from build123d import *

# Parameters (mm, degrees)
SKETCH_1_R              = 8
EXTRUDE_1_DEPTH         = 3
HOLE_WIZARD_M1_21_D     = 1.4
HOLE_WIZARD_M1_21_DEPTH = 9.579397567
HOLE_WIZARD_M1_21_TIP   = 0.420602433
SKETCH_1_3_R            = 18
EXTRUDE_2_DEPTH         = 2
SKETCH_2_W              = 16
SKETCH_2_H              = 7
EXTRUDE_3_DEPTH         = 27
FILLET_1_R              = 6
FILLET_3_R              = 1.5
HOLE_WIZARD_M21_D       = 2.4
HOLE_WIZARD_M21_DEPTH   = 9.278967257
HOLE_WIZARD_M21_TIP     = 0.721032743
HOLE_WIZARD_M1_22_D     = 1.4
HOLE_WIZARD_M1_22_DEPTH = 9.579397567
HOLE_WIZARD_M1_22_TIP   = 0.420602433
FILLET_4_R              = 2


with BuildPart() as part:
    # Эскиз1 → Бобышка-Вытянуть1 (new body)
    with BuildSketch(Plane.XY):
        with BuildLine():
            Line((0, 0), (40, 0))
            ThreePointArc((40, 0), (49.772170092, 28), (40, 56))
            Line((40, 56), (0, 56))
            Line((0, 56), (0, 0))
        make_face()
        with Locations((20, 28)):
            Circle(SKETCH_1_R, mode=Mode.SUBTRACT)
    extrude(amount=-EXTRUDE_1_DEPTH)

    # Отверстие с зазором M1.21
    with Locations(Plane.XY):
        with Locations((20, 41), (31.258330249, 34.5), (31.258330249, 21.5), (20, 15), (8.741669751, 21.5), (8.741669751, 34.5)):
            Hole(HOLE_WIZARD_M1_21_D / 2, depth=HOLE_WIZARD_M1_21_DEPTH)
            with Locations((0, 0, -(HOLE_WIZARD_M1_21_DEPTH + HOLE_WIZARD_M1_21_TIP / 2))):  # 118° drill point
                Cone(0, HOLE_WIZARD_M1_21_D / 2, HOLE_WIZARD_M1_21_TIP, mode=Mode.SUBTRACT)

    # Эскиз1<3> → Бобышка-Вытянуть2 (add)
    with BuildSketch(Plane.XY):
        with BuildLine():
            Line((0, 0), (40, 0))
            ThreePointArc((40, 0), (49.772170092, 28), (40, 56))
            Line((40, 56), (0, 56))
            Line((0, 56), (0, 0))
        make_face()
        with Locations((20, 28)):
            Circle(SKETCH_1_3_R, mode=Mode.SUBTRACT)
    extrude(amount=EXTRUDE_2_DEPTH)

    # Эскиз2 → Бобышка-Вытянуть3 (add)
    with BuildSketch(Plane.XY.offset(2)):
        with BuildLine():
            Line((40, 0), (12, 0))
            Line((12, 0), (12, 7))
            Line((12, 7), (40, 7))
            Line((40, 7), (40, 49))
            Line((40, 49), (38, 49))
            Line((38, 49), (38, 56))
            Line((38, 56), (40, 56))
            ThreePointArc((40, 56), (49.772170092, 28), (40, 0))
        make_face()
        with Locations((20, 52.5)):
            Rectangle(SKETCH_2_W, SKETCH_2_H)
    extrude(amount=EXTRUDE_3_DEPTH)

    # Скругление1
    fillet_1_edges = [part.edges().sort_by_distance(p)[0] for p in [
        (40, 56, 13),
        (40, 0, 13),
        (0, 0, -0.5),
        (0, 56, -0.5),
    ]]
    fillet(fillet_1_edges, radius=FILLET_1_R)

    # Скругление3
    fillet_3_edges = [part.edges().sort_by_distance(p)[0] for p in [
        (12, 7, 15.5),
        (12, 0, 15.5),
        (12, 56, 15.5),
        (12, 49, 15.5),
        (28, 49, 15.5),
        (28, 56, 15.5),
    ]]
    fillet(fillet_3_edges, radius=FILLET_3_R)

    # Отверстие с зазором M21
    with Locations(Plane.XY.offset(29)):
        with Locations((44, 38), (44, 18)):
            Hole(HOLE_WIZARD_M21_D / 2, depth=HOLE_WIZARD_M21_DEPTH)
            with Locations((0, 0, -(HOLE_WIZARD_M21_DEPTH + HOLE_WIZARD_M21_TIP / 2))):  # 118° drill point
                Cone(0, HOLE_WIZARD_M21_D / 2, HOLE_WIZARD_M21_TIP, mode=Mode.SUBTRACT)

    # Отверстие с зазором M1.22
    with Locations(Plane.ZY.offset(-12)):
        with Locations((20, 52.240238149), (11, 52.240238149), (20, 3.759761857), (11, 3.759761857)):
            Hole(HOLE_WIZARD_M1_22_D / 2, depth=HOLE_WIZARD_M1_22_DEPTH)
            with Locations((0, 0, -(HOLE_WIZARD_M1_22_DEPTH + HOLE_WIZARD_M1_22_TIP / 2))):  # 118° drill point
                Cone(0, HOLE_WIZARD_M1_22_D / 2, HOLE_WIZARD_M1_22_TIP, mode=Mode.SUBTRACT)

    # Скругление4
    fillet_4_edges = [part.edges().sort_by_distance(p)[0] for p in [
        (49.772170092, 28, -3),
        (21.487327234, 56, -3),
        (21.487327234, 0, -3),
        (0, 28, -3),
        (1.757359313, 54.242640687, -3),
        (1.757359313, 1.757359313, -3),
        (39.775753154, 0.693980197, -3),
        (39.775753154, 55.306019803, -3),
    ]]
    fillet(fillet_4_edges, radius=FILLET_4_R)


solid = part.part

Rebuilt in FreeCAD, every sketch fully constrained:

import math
import FreeCAD as App
import Part
import Sketcher

V = App.Vector


def edges_at(feature, points):
    """Names of the edges that pass closest to the given points."""
    edges = feature.Shape.Edges
    near = lambda p: min(range(len(edges)), key=lambda i: edges[i].distToShape(Part.Vertex(*p))[0])
    return sorted({f"Edge{near(p) + 1}" for p in points})

doc = App.newDocument("Part")
body = doc.addObject("PartDesign::Body", "Body")

# Sketch on XY plane
sketch1 = body.newObject("Sketcher::SketchObject", "Sketch")
sketch1.AttachmentSupport = (doc.getObject("XY_Plane"), [""])
sketch1.MapMode = "FlatFace"
sketch1.addGeometry(Part.LineSegment(V(0, 0, 0), V(40, 0, 0)), False)
sketch1.addGeometry(Part.ArcOfCircle(Part.Circle(V(5, 28, 0), V(0, 0, 1), 45), math.radians(-38), math.radians(38)), False)
sketch1.addGeometry(Part.LineSegment(V(40, 56, 0), V(0, 56, 0)), False)
sketch1.addGeometry(Part.LineSegment(V(0, 56, 0), V(0, 0, 0)), False)
sketch1.addGeometry(Part.Circle(V(20, 28, 0), V(0, 0, 1), 8), False)
sketch1.addConstraint(Sketcher.Constraint("Coincident", 0, 2, 1, 1))
sketch1.addConstraint(Sketcher.Constraint("Coincident", 1, 2, 2, 1))
sketch1.addConstraint(Sketcher.Constraint("Coincident", 2, 2, 3, 1))
sketch1.addConstraint(Sketcher.Constraint("Coincident", 3, 2, 0, 1))
sketch1.addConstraint(Sketcher.Constraint("Horizontal", 0))
sketch1.addConstraint(Sketcher.Constraint("Horizontal", 2))
sketch1.addConstraint(Sketcher.Constraint("Vertical", 3))
sketch1.addConstraint(Sketcher.Constraint("Coincident", 3, 2, -1, 1))
sketch1.addConstraint(Sketcher.Constraint("Horizontal", 1, 3, 4, 3))
sketch1.addConstraint(Sketcher.Constraint("Vertical", 0, 2, 1, 2))
sketch1.addConstraint(Sketcher.Constraint("Diameter", 4, 16.0))
sketch1.addConstraint(Sketcher.Constraint("Radius", 1, 45.0))
sketch1.addConstraint(Sketcher.Constraint("DistanceX", 0, 1, 0, 2, 40.0))
sketch1.addConstraint(Sketcher.Constraint("DistanceY", 3, 2, 3, 1, 56.0))
sketch1.addConstraint(Sketcher.Constraint("DistanceX", -1, 1, 4, 3, 20.0))
pad1 = body.newObject("PartDesign::Pad", "Pad")
pad1.Profile = sketch1
pad1.Length = 3
pad1.Reversed = True

# Sketch on XY plane
sketch2 = body.newObject("Sketcher::SketchObject", "Sketch001")
sketch2.AttachmentSupport = (doc.getObject("XY_Plane"), [""])
sketch2.MapMode = "FlatFace"
sketch2.addGeometry(Part.Circle(V(20, 41, 0), V(0, 0, 1), 0.7), False)
sketch2.addGeometry(Part.Circle(V(31.3, 34.5, 0), V(0, 0, 1), 0.7), False)
sketch2.addGeometry(Part.Circle(V(31.3, 21.5, 0), V(0, 0, 1), 0.7), False)
sketch2.addGeometry(Part.Circle(V(20, 15, 0), V(0, 0, 1), 0.7), False)
sketch2.addGeometry(Part.Circle(V(8.7, 21.5, 0), V(0, 0, 1), 0.7), False)
sketch2.addGeometry(Part.Circle(V(8.7, 34.5, 0), V(0, 0, 1), 0.7), False)
sketch2.addConstraint(Sketcher.Constraint("Equal", 0, 1))
sketch2.addConstraint(Sketcher.Constraint("Equal", 1, 2))
sketch2.addConstraint(Sketcher.Constraint("Equal", 2, 3))
sketch2.addConstraint(Sketcher.Constraint("Equal", 3, 4))
sketch2.addConstraint(Sketcher.Constraint("Equal", 4, 5))
sketch2.addConstraint(Sketcher.Constraint("Horizontal", 2, 3, 4, 3))
sketch2.addConstraint(Sketcher.Constraint("Horizontal", 1, 3, 5, 3))
sketch2.addConstraint(Sketcher.Constraint("Vertical", 1, 3, 2, 3))
sketch2.addConstraint(Sketcher.Constraint("Vertical", 0, 3, 3, 3))
sketch2.addConstraint(Sketcher.Constraint("Vertical", 4, 3, 5, 3))
sketch2.addConstraint(Sketcher.Constraint("Diameter", 0, 1.4))
sketch2.addConstraint(Sketcher.Constraint("DistanceX", -1, 1, 0, 3, 20.0))
sketch2.addConstraint(Sketcher.Constraint("DistanceY", -1, 1, 0, 3, 41.0))
sketch2.addConstraint(Sketcher.Constraint("DistanceY", -1, 1, 3, 3, 15.0))
sketch2.addConstraint(Sketcher.Constraint("DistanceY", 2, 3, 1, 3, 13.0))
sketch2.addConstraint(Sketcher.Constraint("DistanceY", -1, 1, 1, 3, 34.5))
sketch2.addConstraint(Sketcher.Constraint("DistanceX", -1, 1, 1, 3, 31.25833))
sketch2.addConstraint(Sketcher.Constraint("DistanceX", -1, 1, 4, 3, 8.74167))
doc.recompute()
hole = body.newObject("PartDesign::Hole", "Hole")
hole.Profile = sketch2
hole.ThreadType = "None"
hole.Diameter = 1.4
hole.DepthType = "Dimension"
hole.Depth = 9.579398
hole.DrillPoint = "Angled"
hole.DrillPointAngle = 118

# Sketch on XY plane
sketch3 = body.newObject("Sketcher::SketchObject", "Sketch002")
sketch3.AttachmentSupport = (doc.getObject("XY_Plane"), [""])
sketch3.MapMode = "FlatFace"
sketch3.addGeometry(Part.LineSegment(V(0, 0, 0), V(40, 0, 0)), False)
sketch3.addGeometry(Part.ArcOfCircle(Part.Circle(V(5, 28, 0), V(0, 0, 1), 45), math.radians(-38), math.radians(38)), False)
sketch3.addGeometry(Part.LineSegment(V(40, 56, 0), V(0, 56, 0)), False)
sketch3.addGeometry(Part.LineSegment(V(0, 56, 0), V(0, 0, 0)), False)
sketch3.addGeometry(Part.Circle(V(20, 28, 0), V(0, 0, 1), 18), False)
sketch3.addConstraint(Sketcher.Constraint("Coincident", 0, 2, 1, 1))
sketch3.addConstraint(Sketcher.Constraint("Coincident", 1, 2, 2, 1))
sketch3.addConstraint(Sketcher.Constraint("Coincident", 2, 2, 3, 1))
sketch3.addConstraint(Sketcher.Constraint("Coincident", 3, 2, 0, 1))
sketch3.addConstraint(Sketcher.Constraint("Horizontal", 0))
sketch3.addConstraint(Sketcher.Constraint("Horizontal", 2))
sketch3.addConstraint(Sketcher.Constraint("Vertical", 3))
sketch3.addConstraint(Sketcher.Constraint("Coincident", 3, 2, -1, 1))
sketch3.addConstraint(Sketcher.Constraint("Horizontal", 1, 3, 4, 3))
sketch3.addConstraint(Sketcher.Constraint("Vertical", 0, 2, 1, 2))
sketch3.addConstraint(Sketcher.Constraint("Diameter", 4, 36.0))
sketch3.addConstraint(Sketcher.Constraint("Radius", 1, 45.0))
sketch3.addConstraint(Sketcher.Constraint("DistanceX", 0, 1, 0, 2, 40.0))
sketch3.addConstraint(Sketcher.Constraint("DistanceY", 3, 2, 3, 1, 56.0))
sketch3.addConstraint(Sketcher.Constraint("DistanceX", -1, 1, 4, 3, 20.0))
pad2 = body.newObject("PartDesign::Pad", "Pad001")
pad2.Profile = sketch3
pad2.Length = 2

# Sketch on XY plane
sketch4 = body.newObject("Sketcher::SketchObject", "Sketch003")
sketch4.AttachmentSupport = (doc.getObject("XY_Plane"), [""])
sketch4.MapMode = "FlatFace"
sketch4.AttachmentOffset = App.Placement(V(0, 0, 2), App.Rotation())
sketch4.addGeometry(Part.LineSegment(V(12, 0, 0), V(40, 0, 0)), False)
sketch4.addGeometry(Part.ArcOfCircle(Part.Circle(V(4.8, 28, 0), V(0, 0, 1), 45), math.radians(-38), math.radians(38)), False)
sketch4.addGeometry(Part.LineSegment(V(40, 56, 0), V(38, 56, 0)), False)
sketch4.addGeometry(Part.LineSegment(V(38, 56, 0), V(38, 49, 0)), False)
sketch4.addGeometry(Part.LineSegment(V(38, 49, 0), V(40, 49, 0)), False)
sketch4.addGeometry(Part.LineSegment(V(40, 49, 0), V(40, 7, 0)), False)
sketch4.addGeometry(Part.LineSegment(V(40, 7, 0), V(12, 7, 0)), False)
sketch4.addGeometry(Part.LineSegment(V(12, 7, 0), V(12, 0, 0)), False)
sketch4.addGeometry(Part.LineSegment(V(12, 56, 0), V(12, 49, 0)), False)
sketch4.addGeometry(Part.LineSegment(V(12, 49, 0), V(28, 49, 0)), False)
sketch4.addGeometry(Part.LineSegment(V(28, 49, 0), V(28, 56, 0)), False)
sketch4.addGeometry(Part.LineSegment(V(28, 56, 0), V(12, 56, 0)), False)
sketch4.addConstraint(Sketcher.Constraint("Coincident", 0, 2, 1, 1))
sketch4.addConstraint(Sketcher.Constraint("Coincident", 1, 2, 2, 1))
sketch4.addConstraint(Sketcher.Constraint("Coincident", 2, 2, 3, 1))
sketch4.addConstraint(Sketcher.Constraint("Coincident", 3, 2, 4, 1))
sketch4.addConstraint(Sketcher.Constraint("Coincident", 4, 2, 5, 1))
sketch4.addConstraint(Sketcher.Constraint("Coincident", 5, 2, 6, 1))
sketch4.addConstraint(Sketcher.Constraint("Coincident", 6, 2, 7, 1))
sketch4.addConstraint(Sketcher.Constraint("Coincident", 7, 2, 0, 1))
sketch4.addConstraint(Sketcher.Constraint("Coincident", 8, 2, 9, 1))
sketch4.addConstraint(Sketcher.Constraint("Coincident", 9, 2, 10, 1))
sketch4.addConstraint(Sketcher.Constraint("Coincident", 10, 2, 11, 1))
sketch4.addConstraint(Sketcher.Constraint("Coincident", 11, 2, 8, 1))
sketch4.addConstraint(Sketcher.Constraint("Horizontal", 0))
sketch4.addConstraint(Sketcher.Constraint("Horizontal", 2))
sketch4.addConstraint(Sketcher.Constraint("Vertical", 3))
sketch4.addConstraint(Sketcher.Constraint("Horizontal", 4))
sketch4.addConstraint(Sketcher.Constraint("Vertical", 5))
sketch4.addConstraint(Sketcher.Constraint("Horizontal", 6))
sketch4.addConstraint(Sketcher.Constraint("Vertical", 7))
sketch4.addConstraint(Sketcher.Constraint("Vertical", 8))
sketch4.addConstraint(Sketcher.Constraint("Horizontal", 9))
sketch4.addConstraint(Sketcher.Constraint("Vertical", 10))
sketch4.addConstraint(Sketcher.Constraint("Horizontal", 11))
sketch4.addConstraint(Sketcher.Constraint("PointOnObject", 0, 2, -1))
sketch4.addConstraint(Sketcher.Constraint("Horizontal", 4, 2, 8, 2))
sketch4.addConstraint(Sketcher.Constraint("Horizontal", 2, 2, 10, 2))
sketch4.addConstraint(Sketcher.Constraint("Vertical", 0, 2, 1, 2))
sketch4.addConstraint(Sketcher.Constraint("Vertical", 1, 2, 4, 2))
sketch4.addConstraint(Sketcher.Constraint("Vertical", 7, 2, 8, 2))
sketch4.addConstraint(Sketcher.Constraint("Equal", 3, 7))
sketch4.addConstraint(Sketcher.Constraint("Radius", 1, 45.0))
sketch4.addConstraint(Sketcher.Constraint("DistanceX", 0, 1, 0, 2, 28.0))
sketch4.addConstraint(Sketcher.Constraint("DistanceX", 2, 2, 2, 1, 2.0))
sketch4.addConstraint(Sketcher.Constraint("DistanceX", 9, 1, 9, 2, 16.0))
sketch4.addConstraint(Sketcher.Constraint("DistanceY", 3, 2, 3, 1, 7.0))
sketch4.addConstraint(Sketcher.Constraint("DistanceY", 5, 2, 5, 1, 42.0))
sketch4.addConstraint(Sketcher.Constraint("DistanceX", -1, 1, 0, 2, 40.0))
pad3 = body.newObject("PartDesign::Pad", "Pad002")
pad3.Profile = sketch4
pad3.Length = 27
doc.recompute()

fillet = body.newObject("PartDesign::Fillet", "Fillet")
fillet.Base = (pad3, edges_at(pad3, [
    (40, 56, 13),
    (40, 0, 13),
    (0, 0, -0.5),
    (0, 56, -0.5),
]))
fillet.Radius = 6
doc.recompute()

fillet2 = body.newObject("PartDesign::Fillet", "Fillet001")
fillet2.Base = (fillet, edges_at(fillet, [
    (12, 7, 15.5),
    (12, 0, 15.5),
    (12, 56, 15.5),
    (12, 49, 15.5),
    (28, 49, 15.5),
    (28, 56, 15.5),
]))
fillet2.Radius = 1.5

# Sketch on XY plane
sketch5 = body.newObject("Sketcher::SketchObject", "Sketch004")
sketch5.AttachmentSupport = (doc.getObject("XY_Plane"), [""])
sketch5.MapMode = "FlatFace"
sketch5.AttachmentOffset = App.Placement(V(0, 0, 29), App.Rotation())
sketch5.addGeometry(Part.Circle(V(44, 38, 0), V(0, 0, 1), 1.2), False)
sketch5.addGeometry(Part.Circle(V(44, 18, 0), V(0, 0, 1), 1.2), False)
sketch5.addConstraint(Sketcher.Constraint("Equal", 0, 1))
sketch5.addConstraint(Sketcher.Constraint("Vertical", 0, 3, 1, 3))
sketch5.addConstraint(Sketcher.Constraint("Diameter", 0, 2.4))
sketch5.addConstraint(Sketcher.Constraint("DistanceX", -1, 1, 0, 3, 44.0))
sketch5.addConstraint(Sketcher.Constraint("DistanceY", -1, 1, 0, 3, 38.0))
sketch5.addConstraint(Sketcher.Constraint("DistanceY", -1, 1, 1, 3, 18.0))
doc.recompute()
hole2 = body.newObject("PartDesign::Hole", "Hole001")
hole2.Profile = sketch5
hole2.ThreadType = "None"
hole2.Diameter = 2.4
hole2.DepthType = "Dimension"
hole2.Depth = 9.278967
hole2.DrillPoint = "Angled"
hole2.DrillPointAngle = 118

# Sketch on YZ plane
sketch6 = body.newObject("Sketcher::SketchObject", "Sketch005")
sketch6.AttachmentSupport = (doc.getObject("YZ_Plane"), [""])
sketch6.MapMode = "FlatFace"
sketch6.AttachmentOffset = App.Placement(V(0, 0, 12), App.Rotation())
sketch6.addGeometry(Part.Circle(V(52.2, 20, 0), V(0, 0, 1), 0.7), False)
sketch6.addGeometry(Part.Circle(V(52.2, 11, 0), V(0, 0, 1), 0.7), False)
sketch6.addGeometry(Part.Circle(V(3.8, 20, 0), V(0, 0, 1), 0.7), False)
sketch6.addGeometry(Part.Circle(V(3.8, 11, 0), V(0, 0, 1), 0.7), False)
sketch6.addConstraint(Sketcher.Constraint("Equal", 0, 1))
sketch6.addConstraint(Sketcher.Constraint("Equal", 1, 2))
sketch6.addConstraint(Sketcher.Constraint("Equal", 2, 3))
sketch6.addConstraint(Sketcher.Constraint("Horizontal", 0, 3, 2, 3))
sketch6.addConstraint(Sketcher.Constraint("Horizontal", 1, 3, 3, 3))
sketch6.addConstraint(Sketcher.Constraint("Vertical", 0, 3, 1, 3))
sketch6.addConstraint(Sketcher.Constraint("Vertical", 2, 3, 3, 3))
sketch6.addConstraint(Sketcher.Constraint("Diameter", 0, 1.4))
sketch6.addConstraint(Sketcher.Constraint("DistanceY", -1, 1, 0, 3, 20.0))
sketch6.addConstraint(Sketcher.Constraint("DistanceY", -1, 1, 1, 3, 11.0))
sketch6.addConstraint(Sketcher.Constraint("DistanceX", -1, 1, 0, 3, 52.240238))
sketch6.addConstraint(Sketcher.Constraint("DistanceX", -1, 1, 2, 3, 3.759762))
doc.recompute()
hole3 = body.newObject("PartDesign::Hole", "Hole002")
hole3.Profile = sketch6
hole3.ThreadType = "None"
hole3.Diameter = 1.4
hole3.DepthType = "Dimension"
hole3.Depth = 9.579398
hole3.DrillPoint = "Angled"
hole3.DrillPointAngle = 118
hole3.Reversed = True
doc.recompute()

fillet3 = body.newObject("PartDesign::Fillet", "Fillet002")
fillet3.Base = (hole3, edges_at(hole3, [
    (49.772, 28, -3),
    (21.487, 56, -3),
    (21.487, 0, -3),
    (0, 28, -3),
    (1.757, 54.243, -3),
    (1.757, 1.757, -3),
    (39.776, 0.694, -3),
    (39.776, 55.306, -3),
]))
fillet3.Radius = 2

doc.recompute()
